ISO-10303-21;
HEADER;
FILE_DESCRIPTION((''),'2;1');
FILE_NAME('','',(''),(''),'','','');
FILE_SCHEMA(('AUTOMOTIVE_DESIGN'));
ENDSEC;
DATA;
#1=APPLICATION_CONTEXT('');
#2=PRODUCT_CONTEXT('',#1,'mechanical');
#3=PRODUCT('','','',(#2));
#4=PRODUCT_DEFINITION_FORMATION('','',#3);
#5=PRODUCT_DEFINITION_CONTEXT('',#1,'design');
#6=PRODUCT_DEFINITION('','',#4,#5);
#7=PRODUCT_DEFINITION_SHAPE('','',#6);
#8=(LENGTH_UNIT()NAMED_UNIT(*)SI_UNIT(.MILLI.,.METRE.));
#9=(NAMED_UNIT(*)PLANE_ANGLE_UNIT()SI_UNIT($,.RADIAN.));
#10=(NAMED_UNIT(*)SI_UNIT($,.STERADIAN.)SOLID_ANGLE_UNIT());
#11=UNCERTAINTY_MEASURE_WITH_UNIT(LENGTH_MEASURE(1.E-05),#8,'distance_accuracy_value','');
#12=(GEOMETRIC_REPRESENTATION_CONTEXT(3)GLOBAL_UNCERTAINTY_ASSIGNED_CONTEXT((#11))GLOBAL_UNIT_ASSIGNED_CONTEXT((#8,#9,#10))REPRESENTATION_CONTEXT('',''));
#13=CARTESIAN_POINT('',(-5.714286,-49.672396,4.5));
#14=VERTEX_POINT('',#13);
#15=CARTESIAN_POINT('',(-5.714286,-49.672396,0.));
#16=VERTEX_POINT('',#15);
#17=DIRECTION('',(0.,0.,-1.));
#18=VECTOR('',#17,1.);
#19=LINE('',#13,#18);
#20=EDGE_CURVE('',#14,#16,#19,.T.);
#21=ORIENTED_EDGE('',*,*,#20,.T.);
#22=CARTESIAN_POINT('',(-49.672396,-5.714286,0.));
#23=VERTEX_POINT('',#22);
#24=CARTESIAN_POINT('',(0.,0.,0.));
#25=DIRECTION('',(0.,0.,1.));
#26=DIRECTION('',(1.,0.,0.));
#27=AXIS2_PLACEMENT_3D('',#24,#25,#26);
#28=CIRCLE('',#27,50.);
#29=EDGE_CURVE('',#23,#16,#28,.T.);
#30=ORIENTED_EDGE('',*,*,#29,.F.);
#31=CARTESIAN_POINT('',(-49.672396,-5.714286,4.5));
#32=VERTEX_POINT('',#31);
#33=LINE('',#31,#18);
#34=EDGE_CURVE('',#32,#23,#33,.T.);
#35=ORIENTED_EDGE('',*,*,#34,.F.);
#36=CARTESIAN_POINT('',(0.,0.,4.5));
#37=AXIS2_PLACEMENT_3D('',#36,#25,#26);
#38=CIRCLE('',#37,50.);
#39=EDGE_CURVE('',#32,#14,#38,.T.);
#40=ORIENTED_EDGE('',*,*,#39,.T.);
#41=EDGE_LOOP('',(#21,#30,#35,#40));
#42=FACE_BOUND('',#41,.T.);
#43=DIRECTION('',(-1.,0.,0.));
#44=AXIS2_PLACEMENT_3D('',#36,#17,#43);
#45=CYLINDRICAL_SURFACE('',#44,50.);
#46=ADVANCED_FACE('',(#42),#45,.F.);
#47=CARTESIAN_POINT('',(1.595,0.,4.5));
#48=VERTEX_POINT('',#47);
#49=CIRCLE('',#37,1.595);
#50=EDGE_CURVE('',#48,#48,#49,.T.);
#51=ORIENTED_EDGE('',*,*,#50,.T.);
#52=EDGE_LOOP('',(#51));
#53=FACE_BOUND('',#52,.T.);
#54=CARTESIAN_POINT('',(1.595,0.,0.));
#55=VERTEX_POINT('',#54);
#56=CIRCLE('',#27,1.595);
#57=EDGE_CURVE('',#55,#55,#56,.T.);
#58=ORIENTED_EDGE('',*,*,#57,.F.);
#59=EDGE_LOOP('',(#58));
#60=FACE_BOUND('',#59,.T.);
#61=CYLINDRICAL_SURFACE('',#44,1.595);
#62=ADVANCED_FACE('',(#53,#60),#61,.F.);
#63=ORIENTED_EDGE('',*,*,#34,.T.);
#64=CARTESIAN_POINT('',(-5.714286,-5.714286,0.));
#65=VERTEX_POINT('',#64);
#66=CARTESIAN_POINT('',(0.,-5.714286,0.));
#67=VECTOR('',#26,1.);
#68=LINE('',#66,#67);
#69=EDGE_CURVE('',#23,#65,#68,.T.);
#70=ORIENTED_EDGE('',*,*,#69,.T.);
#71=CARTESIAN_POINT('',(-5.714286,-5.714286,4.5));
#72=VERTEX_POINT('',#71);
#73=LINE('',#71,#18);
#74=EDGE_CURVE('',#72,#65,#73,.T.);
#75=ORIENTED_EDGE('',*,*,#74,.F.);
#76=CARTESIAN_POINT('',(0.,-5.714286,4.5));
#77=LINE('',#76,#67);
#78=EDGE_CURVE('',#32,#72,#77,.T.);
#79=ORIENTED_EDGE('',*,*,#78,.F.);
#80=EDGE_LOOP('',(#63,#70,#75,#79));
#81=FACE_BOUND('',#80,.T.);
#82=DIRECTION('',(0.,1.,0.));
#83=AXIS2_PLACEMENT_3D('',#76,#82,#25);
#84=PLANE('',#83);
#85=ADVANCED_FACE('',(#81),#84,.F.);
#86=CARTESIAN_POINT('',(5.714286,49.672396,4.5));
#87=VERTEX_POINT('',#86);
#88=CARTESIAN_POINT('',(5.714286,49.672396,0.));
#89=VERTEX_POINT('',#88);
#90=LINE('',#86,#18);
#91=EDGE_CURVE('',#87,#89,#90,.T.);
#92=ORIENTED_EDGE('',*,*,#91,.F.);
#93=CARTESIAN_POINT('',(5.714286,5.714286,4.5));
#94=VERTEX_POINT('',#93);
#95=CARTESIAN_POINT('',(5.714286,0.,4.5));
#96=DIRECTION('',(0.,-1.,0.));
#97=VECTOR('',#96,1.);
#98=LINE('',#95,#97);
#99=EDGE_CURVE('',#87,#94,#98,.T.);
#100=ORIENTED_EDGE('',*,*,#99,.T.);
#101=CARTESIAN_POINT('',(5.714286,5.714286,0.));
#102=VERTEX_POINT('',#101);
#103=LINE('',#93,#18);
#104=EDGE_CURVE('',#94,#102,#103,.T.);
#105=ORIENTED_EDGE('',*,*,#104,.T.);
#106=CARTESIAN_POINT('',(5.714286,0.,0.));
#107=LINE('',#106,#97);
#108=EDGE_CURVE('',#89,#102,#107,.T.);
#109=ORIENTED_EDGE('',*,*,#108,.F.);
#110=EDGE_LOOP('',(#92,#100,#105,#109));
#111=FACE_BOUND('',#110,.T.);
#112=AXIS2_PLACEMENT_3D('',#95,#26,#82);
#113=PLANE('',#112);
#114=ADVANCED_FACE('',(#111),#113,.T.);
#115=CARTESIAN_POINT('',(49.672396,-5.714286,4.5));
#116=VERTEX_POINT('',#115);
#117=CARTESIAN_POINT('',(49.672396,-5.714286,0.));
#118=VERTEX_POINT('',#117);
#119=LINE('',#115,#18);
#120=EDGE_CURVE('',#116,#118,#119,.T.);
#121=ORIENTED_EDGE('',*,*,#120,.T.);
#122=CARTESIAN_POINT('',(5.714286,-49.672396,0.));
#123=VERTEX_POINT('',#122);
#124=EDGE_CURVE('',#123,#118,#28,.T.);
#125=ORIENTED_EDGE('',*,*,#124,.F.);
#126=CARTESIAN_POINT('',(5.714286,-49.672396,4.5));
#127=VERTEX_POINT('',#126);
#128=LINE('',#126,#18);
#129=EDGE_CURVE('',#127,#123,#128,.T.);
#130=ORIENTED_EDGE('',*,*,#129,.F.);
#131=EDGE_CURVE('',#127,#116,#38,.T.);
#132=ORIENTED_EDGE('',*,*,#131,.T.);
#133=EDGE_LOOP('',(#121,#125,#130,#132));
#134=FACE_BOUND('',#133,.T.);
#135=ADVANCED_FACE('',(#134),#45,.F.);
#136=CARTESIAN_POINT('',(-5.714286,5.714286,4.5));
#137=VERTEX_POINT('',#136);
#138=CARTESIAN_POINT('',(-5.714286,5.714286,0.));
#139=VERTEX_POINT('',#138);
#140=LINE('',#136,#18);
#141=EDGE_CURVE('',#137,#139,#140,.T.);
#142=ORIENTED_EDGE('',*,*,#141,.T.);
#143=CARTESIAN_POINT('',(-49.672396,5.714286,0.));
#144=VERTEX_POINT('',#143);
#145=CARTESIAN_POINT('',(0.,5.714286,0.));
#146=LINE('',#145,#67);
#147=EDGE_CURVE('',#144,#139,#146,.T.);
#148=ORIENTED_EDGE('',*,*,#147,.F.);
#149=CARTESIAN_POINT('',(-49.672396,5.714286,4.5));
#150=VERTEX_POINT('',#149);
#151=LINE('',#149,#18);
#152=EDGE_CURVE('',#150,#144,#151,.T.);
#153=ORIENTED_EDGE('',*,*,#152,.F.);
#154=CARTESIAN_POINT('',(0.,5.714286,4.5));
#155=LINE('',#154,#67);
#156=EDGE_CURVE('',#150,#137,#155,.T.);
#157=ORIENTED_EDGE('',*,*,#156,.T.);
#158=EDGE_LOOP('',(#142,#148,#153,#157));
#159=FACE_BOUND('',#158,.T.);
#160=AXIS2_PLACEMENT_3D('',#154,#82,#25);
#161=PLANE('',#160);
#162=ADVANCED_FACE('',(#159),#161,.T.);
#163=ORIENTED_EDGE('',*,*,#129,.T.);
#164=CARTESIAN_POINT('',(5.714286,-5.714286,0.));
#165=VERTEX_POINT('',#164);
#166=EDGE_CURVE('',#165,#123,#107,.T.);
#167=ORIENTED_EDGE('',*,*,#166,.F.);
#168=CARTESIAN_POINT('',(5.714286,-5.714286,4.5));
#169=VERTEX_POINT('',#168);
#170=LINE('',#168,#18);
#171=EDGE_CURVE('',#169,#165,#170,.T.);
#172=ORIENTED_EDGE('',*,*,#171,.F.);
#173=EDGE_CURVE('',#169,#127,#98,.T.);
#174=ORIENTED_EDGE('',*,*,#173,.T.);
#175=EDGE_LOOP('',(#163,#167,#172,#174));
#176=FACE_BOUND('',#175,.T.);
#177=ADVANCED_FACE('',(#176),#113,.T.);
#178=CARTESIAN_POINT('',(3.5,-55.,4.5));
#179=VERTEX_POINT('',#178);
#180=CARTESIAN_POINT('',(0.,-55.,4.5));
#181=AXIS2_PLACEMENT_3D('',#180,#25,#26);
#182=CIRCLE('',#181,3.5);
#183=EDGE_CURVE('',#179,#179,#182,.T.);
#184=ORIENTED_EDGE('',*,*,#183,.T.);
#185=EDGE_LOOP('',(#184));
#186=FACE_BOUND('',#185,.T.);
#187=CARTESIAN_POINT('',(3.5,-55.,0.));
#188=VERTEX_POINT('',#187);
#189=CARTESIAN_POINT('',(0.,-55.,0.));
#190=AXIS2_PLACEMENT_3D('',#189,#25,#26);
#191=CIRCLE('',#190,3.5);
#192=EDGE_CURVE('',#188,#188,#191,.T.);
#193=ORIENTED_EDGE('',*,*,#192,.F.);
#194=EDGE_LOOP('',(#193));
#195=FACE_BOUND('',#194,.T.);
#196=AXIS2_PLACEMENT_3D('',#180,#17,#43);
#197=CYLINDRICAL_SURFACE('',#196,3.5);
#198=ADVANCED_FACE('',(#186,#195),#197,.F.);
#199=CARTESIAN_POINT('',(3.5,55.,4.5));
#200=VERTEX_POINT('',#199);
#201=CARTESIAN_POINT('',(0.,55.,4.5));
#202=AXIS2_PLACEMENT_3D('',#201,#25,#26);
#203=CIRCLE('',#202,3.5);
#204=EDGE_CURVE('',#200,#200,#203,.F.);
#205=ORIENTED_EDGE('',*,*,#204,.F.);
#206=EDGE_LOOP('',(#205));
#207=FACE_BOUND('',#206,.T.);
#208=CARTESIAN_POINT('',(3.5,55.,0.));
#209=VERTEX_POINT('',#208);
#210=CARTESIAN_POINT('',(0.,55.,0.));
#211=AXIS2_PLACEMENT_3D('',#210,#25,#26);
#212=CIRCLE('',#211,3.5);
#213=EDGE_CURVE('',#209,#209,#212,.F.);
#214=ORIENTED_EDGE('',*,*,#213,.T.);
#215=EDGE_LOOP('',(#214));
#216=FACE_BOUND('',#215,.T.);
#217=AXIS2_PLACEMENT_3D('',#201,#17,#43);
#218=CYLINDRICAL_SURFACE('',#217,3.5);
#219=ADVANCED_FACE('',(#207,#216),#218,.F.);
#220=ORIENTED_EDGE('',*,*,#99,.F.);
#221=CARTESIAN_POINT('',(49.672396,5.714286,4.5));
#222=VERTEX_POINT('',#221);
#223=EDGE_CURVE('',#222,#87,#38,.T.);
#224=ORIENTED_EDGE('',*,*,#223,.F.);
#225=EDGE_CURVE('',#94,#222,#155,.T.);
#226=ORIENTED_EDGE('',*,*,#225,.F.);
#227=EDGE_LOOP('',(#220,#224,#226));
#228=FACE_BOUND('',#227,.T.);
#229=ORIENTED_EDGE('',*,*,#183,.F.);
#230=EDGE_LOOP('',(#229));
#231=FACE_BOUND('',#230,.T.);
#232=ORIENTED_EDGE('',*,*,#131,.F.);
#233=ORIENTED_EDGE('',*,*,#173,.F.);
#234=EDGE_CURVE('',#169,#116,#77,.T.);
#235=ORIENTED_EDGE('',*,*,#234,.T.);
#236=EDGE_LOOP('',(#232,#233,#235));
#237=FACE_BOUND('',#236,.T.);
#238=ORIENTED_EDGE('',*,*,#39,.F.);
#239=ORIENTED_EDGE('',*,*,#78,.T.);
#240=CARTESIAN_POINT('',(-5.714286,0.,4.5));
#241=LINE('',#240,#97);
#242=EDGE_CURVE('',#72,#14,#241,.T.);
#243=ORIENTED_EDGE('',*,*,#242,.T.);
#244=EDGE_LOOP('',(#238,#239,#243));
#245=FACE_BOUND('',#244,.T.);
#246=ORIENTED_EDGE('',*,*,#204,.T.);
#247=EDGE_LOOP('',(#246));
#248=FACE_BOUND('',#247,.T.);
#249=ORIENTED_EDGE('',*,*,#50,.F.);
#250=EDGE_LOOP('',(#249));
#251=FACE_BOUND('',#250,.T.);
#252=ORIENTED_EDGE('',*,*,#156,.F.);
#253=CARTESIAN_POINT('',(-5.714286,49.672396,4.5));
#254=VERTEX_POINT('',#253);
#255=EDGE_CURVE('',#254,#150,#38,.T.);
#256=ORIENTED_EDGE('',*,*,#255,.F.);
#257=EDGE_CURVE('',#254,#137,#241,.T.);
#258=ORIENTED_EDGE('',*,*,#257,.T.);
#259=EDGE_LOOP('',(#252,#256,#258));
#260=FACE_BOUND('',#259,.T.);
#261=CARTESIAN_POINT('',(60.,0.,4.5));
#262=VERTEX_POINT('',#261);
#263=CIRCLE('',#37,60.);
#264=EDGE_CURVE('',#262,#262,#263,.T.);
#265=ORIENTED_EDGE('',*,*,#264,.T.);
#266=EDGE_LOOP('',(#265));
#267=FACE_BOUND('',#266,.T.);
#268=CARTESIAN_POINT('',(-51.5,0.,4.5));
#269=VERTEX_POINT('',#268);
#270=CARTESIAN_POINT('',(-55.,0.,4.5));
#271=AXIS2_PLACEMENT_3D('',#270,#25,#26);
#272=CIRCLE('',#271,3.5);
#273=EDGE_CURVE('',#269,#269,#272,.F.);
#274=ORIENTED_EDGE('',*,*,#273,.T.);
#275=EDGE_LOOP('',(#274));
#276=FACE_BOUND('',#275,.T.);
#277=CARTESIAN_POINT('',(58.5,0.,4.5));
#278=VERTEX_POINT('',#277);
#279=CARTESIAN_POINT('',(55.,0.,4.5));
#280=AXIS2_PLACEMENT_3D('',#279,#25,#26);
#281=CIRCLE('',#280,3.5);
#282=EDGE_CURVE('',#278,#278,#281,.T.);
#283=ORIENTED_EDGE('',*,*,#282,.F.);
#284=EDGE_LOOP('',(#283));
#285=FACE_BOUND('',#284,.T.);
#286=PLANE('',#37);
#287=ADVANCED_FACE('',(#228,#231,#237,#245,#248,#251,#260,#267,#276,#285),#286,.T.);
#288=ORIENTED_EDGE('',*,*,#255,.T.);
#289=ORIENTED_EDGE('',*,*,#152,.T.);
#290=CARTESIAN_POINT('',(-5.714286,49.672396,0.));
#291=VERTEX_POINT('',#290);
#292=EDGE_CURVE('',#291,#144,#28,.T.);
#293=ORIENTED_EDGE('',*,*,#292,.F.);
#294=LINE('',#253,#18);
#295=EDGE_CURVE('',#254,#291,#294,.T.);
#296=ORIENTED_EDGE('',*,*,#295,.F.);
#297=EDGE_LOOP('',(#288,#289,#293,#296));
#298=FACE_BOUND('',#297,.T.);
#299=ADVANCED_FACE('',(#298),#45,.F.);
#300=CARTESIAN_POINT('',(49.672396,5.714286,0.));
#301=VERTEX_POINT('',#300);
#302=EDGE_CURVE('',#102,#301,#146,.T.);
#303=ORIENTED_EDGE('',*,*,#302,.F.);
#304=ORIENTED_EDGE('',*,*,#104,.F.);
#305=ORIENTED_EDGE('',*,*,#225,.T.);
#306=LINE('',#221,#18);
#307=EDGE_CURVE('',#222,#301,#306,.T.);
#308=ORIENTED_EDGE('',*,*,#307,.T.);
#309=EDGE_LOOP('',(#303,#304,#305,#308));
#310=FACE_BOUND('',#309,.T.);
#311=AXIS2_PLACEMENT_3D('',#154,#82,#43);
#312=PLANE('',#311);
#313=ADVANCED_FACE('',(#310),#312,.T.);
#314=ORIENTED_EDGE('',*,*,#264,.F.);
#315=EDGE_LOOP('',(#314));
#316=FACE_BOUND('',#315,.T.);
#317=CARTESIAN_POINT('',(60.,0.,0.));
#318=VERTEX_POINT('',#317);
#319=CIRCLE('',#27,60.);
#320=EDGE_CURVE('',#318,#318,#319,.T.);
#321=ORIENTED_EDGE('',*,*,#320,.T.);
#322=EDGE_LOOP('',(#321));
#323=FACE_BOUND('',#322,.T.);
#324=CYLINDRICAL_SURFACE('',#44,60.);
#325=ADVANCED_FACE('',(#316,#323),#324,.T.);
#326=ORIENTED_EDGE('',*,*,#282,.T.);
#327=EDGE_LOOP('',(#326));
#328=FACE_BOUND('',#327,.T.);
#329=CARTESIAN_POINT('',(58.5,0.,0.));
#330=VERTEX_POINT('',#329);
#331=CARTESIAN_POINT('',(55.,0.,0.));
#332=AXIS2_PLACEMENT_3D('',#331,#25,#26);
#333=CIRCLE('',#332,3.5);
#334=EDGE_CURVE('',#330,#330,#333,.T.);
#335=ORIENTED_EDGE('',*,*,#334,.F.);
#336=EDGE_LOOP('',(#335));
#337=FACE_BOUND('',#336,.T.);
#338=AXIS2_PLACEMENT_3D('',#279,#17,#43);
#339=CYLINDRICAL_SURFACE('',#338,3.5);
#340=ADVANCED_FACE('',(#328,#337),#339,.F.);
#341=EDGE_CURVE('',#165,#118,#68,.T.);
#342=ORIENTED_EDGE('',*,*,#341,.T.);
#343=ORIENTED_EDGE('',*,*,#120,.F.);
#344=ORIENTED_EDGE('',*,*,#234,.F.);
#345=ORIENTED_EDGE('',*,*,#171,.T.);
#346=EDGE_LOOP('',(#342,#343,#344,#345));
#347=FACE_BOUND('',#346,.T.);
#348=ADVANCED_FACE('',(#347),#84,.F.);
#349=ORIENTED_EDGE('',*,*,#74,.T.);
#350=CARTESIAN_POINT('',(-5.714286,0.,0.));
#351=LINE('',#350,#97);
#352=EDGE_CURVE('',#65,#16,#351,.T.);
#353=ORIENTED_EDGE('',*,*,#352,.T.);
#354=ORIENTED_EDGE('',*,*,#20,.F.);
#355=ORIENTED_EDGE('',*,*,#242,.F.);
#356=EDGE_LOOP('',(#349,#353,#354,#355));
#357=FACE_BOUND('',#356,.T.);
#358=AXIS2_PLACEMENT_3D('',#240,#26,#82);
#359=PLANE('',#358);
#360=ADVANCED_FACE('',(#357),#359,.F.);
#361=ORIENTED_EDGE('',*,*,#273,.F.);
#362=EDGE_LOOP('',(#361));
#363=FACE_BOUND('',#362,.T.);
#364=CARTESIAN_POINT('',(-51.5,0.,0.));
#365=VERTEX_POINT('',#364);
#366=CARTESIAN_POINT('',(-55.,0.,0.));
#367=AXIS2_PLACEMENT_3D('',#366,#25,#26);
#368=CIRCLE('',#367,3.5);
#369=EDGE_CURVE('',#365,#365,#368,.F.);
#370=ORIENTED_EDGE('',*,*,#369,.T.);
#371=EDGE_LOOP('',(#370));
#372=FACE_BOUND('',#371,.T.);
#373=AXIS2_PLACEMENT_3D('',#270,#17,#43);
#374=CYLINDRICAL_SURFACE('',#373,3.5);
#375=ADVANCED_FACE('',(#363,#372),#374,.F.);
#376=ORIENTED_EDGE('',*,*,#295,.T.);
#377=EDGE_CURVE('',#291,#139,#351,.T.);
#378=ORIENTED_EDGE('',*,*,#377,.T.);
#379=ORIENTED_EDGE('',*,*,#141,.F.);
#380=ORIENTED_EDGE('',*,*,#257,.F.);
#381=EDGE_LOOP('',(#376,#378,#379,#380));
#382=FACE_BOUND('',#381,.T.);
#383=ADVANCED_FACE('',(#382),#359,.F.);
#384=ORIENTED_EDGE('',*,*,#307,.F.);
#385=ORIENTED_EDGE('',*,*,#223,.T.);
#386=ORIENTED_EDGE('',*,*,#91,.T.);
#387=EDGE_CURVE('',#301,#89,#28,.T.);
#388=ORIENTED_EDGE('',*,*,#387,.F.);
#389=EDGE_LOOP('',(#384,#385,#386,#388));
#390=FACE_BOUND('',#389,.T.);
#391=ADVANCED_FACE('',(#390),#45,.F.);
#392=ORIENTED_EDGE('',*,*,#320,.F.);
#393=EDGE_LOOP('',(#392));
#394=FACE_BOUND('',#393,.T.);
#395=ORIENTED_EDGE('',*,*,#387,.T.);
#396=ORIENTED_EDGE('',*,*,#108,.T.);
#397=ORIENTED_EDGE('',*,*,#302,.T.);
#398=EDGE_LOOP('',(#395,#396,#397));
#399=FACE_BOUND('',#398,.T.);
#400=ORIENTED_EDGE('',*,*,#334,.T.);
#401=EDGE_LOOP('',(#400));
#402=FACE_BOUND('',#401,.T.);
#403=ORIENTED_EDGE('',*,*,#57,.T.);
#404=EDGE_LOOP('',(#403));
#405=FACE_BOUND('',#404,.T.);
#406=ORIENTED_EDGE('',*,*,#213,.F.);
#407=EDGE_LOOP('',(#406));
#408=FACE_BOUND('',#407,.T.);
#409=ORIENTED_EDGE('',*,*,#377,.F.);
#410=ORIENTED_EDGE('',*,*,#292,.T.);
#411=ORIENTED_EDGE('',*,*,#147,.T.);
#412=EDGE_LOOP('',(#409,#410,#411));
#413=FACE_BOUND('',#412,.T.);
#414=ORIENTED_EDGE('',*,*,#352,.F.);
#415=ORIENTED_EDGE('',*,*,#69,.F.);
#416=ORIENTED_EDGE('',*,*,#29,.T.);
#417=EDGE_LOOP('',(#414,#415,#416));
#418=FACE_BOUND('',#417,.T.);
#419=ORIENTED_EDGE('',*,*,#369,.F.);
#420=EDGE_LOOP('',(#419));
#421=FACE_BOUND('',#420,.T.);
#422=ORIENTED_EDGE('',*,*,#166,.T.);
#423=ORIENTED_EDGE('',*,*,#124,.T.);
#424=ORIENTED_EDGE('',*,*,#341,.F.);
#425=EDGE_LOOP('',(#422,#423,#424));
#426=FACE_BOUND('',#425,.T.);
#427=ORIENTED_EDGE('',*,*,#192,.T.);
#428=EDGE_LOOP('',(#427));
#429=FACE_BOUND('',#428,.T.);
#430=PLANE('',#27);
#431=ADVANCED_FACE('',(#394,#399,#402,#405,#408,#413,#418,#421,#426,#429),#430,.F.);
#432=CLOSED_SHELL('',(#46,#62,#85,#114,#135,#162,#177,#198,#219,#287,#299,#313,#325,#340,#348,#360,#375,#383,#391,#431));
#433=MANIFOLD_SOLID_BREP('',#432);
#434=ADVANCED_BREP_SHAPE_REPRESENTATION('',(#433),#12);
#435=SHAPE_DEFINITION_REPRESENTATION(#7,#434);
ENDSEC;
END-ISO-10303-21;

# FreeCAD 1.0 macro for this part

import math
import FreeCAD as App
import Part
import Sketcher
from FreeCAD import Vector
Q = App.Units.Quantity

doc = App.newDocument("Part")
body = doc.addObject("PartDesign::Body", "Body")

# Sketch on XY plane
sketch1 = body.newObject("Sketcher::SketchObject", "Sketch")
sketch1.AttachmentSupport = (doc.getObject("XY_Plane"), [""])
sketch1.MapMode = "FlatFace"
sketch1.addGeometry(Part.Circle(Vector(0, 0, 0), Vector(0, 0, 1), 60), False)
sketch1.addGeometry(Part.Circle(Vector(0, -55, 0), Vector(0, 0, 1), 3.5), False)
sketch1.addGeometry(Part.Circle(Vector(-55, 0, 0), Vector(0, 0, 1), 3.5), False)
sketch1.addGeometry(Part.ArcOfCircle(Part.Circle(Vector(0, 0, 0), Vector(0, 0, 1), 50), math.radians(7), math.radians(83)), False)
sketch1.addGeometry(Part.LineSegment(Vector(49.7, 5.7, 0), Vector(5.7, 5.7, 0)), False)
sketch1.addGeometry(Part.LineSegment(Vector(5.7, 5.7, 0), Vector(5.7, 49.7, 0)), False)
sketch1.addGeometry(Part.ArcOfCircle(Part.Circle(Vector(0, 0, 0), Vector(0, 0, 1), 50), math.radians(97), math.radians(173)), False)
sketch1.addGeometry(Part.LineSegment(Vector(-5.7, 49.7, 0), Vector(-5.7, 5.7, 0)), False)
sketch1.addGeometry(Part.LineSegment(Vector(-5.7, 5.7, 0), Vector(-49.7, 5.7, 0)), False)
sketch1.addGeometry(Part.ArcOfCircle(Part.Circle(Vector(0, 0, 0), Vector(0, 0, 1), 50), math.radians(-173), math.radians(-97)), False)
sketch1.addGeometry(Part.LineSegment(Vector(-49.7, -5.7, 0), Vector(-5.7, -5.7, 0)), False)
sketch1.addGeometry(Part.LineSegment(Vector(-5.7, -5.7, 0), Vector(-5.7, -49.7, 0)), False)
sketch1.addGeometry(Part.ArcOfCircle(Part.Circle(Vector(0, 0, 0), Vector(0, 0, 1), 50), math.radians(-83), math.radians(-7)), False)
sketch1.addGeometry(Part.LineSegment(Vector(5.7, -49.7, 0), Vector(5.7, -5.7, 0)), False)
sketch1.addGeometry(Part.LineSegment(Vector(5.7, -5.7, 0), Vector(49.7, -5.7, 0)), False)
sketch1.addGeometry(Part.Circle(Vector(55, 0, 0), Vector(0, 0, 1), 3.5), False)
sketch1.addGeometry(Part.Circle(Vector(0, 55, 0), Vector(0, 0, 1), 3.5), False)
sketch1.addGeometry(Part.Circle(Vector(0, 0, 0), Vector(0, 0, 1), 1.6), False)
sketch1.addConstraint(Sketcher.Constraint("Coincident", 3, 1, 4, 1))
sketch1.addConstraint(Sketcher.Constraint("Coincident", 4, 2, 5, 1))
sketch1.addConstraint(Sketcher.Constraint("Coincident", 5, 2, 3, 2))
sketch1.addConstraint(Sketcher.Constraint("Coincident", 6, 1, 7, 1))
sketch1.addConstraint(Sketcher.Constraint("Coincident", 7, 2, 8, 1))
sketch1.addConstraint(Sketcher.Constraint("Coincident", 8, 2, 6, 2))
sketch1.addConstraint(Sketcher.Constraint("Coincident", 9, 1, 10, 1))
sketch1.addConstraint(Sketcher.Constraint("Coincident", 10, 2, 11, 1))
sketch1.addConstraint(Sketcher.Constraint("Coincident", 11, 2, 9, 2))
sketch1.addConstraint(Sketcher.Constraint("Coincident", 12, 1, 13, 1))
sketch1.addConstraint(Sketcher.Constraint("Coincident", 13, 2, 14, 1))
sketch1.addConstraint(Sketcher.Constraint("Coincident", 14, 2, 12, 2))
sketch1.addConstraint(Sketcher.Constraint("Horizontal", 4))
sketch1.addConstraint(Sketcher.Constraint("Vertical", 5))
sketch1.addConstraint(Sketcher.Constraint("Vertical", 7))
sketch1.addConstraint(Sketcher.Constraint("Horizontal", 8))
sketch1.addConstraint(Sketcher.Constraint("Horizontal", 10))
sketch1.addConstraint(Sketcher.Constraint("Vertical", 11))
sketch1.addConstraint(Sketcher.Constraint("Vertical", 13))
sketch1.addConstraint(Sketcher.Constraint("Horizontal", 14))
sketch1.addConstraint(Sketcher.Constraint("Coincident", 0, 3, -1, 1))
sketch1.addConstraint(Sketcher.Constraint("Coincident", 3, 3, -1, 1))
sketch1.addConstraint(Sketcher.Constraint("Coincident", 6, 3, -1, 1))
sketch1.addConstraint(Sketcher.Constraint("Coincident", 9, 3, -1, 1))
sketch1.addConstraint(Sketcher.Constraint("Coincident", 12, 3, -1, 1))
sketch1.addConstraint(Sketcher.Constraint("Coincident", 17, 3, -1, 1))
sketch1.addConstraint(Sketcher.Constraint("Equal", 1, 2))
sketch1.addConstraint(Sketcher.Constraint("Equal", 3, 6))
sketch1.addConstraint(Sketcher.Constraint("Equal", 6, 9))
sketch1.addConstraint(Sketcher.Constraint("Equal", 9, 12))
sketch1.addConstraint(Sketcher.Constraint("Equal", 2, 15))
sketch1.addConstraint(Sketcher.Constraint("Equal", 15, 16))
sketch1.addConstraint(Sketcher.Constraint("Symmetric", 2, 3, 15, 3, -1, 1))
sketch1.addConstraint(Sketcher.Constraint("Symmetric", 1, 3, 16, 3, -1, 1))
sketch1.addConstraint(Sketcher.Constraint("Symmetric", 4, 2, 10, 2, -1, 1))
sketch1.addConstraint(Sketcher.Constraint("Symmetric", 7, 2, 13, 2, -1, 1))
sketch1.addConstraint(Sketcher.Constraint("Symmetric", 4, 2, 7, 2, -2))
sketch1.addConstraint(Sketcher.Constraint("PointOnObject", 1, 3, -2))
sketch1.addConstraint(Sketcher.Constraint("PointOnObject", 2, 3, -1))
sketch1.addConstraint(Sketcher.Constraint("Equal", 14, 5))
sketch1.addConstraint(Sketcher.Constraint("Diameter", 0, Q("120 mm")))
sketch1.addConstraint(Sketcher.Constraint("Diameter", 1, Q("7 mm")))
sketch1.addConstraint(Sketcher.Constraint("Radius", 3, Q("50 mm")))
sketch1.addConstraint(Sketcher.Constraint("Diameter", 17, Q("3.19 mm")))
sketch1.addConstraint(Sketcher.Constraint("DistanceY", 1, 3, -1, 1, Q("55 mm")))
sketch1.addConstraint(Sketcher.Constraint("DistanceX", 2, 3, -1, 1, Q("55 mm")))
sketch1.addConstraint(Sketcher.Constraint("DistanceX", 4, 2, 4, 1, Q("43.95811 mm")))
pad1 = body.newObject("PartDesign::Pad", "Pad")
pad1.Profile = sketch1
pad1.Length = 4.5

doc.recompute()
